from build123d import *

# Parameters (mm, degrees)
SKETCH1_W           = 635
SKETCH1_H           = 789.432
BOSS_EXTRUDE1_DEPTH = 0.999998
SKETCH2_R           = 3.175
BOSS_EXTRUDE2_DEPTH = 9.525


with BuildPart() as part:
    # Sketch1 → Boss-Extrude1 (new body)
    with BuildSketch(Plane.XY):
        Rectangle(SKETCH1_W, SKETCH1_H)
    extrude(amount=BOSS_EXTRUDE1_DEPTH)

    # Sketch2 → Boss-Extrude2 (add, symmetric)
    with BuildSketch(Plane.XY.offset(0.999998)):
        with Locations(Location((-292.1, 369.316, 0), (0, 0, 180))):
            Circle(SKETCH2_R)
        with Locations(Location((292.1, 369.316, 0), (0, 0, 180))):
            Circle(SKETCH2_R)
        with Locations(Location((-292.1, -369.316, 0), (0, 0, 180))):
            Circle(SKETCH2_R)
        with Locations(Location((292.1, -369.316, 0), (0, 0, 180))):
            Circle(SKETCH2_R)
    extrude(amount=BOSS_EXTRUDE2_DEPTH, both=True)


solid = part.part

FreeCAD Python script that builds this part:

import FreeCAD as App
import Part
import Sketcher

V = App.Vector
Q = App.Units.Quantity


def add_polygon(sketch, points):
    """Adds a closed chain of lines whose ends are joined by coincident constraints."""
    first, n = sketch.GeometryCount, len(points)
    for a, b in zip(points, points[1:] + points[:1]):
        sketch.addGeometry(Part.LineSegment(App.Vector(*a, 0), App.Vector(*b, 0)), False)
    for i in range(n):
        sketch.addConstraint(Sketcher.Constraint("Coincident", first + i, 2, first + (i + 1) % n, 1))

doc = App.newDocument("Part")
params = doc.addObject("Spreadsheet::Sheet", "Params")
for row, (alias, value) in enumerate([
    ("sketch1_width", "25 in"),
    ("sketch1_height", "31.08 in"),
    ("pad1_length", "0.999998 mm"),
    ("sketch2_diameter", "0.25 in"),
    ("pad2_length", "0.75 in"),
], start=1):
    params.set(f"A{row}", alias)
    params.set(f"B{row}", "=" + value)
    params.setAlias(f"B{row}", alias)

body = doc.addObject("PartDesign::Body", "Body")

sketch1 = doc.addObject("Sketcher::SketchObject", "Sketch")
body.addObject(sketch1)
sketch1.AttachmentSupport = (doc.XY_Plane, [""])
sketch1.MapMode = "FlatFace"
add_polygon(sketch1, [(-317.5, 394.716), (-317.5, -394.716), (317.5, -394.716), (317.5, 394.716)])
sketch1.addConstraint(Sketcher.Constraint("Vertical", 0))
sketch1.addConstraint(Sketcher.Constraint("Horizontal", 1))
sketch1.addConstraint(Sketcher.Constraint("Vertical", 2))
sketch1.addConstraint(Sketcher.Constraint("Horizontal", 3))
sketch1.addConstraint(Sketcher.Constraint("Symmetric", 0, 2, 2, 2, -1, 1))
sketch1.addConstraint(Sketcher.Constraint("DistanceX", 1, 1, 1, 2, Q("25 in")))
sketch1.addConstraint(Sketcher.Constraint("DistanceY", 0, 2, 0, 1, Q("31.08 in")))
sketch1.setExpression("Constraints[9]", "Params.sketch1_width")
sketch1.setExpression("Constraints[10]", "Params.sketch1_height")
pad1 = doc.addObject("PartDesign::Pad", "Pad")
body.addObject(pad1)
pad1.Profile = sketch1
pad1.setExpression("Length", "Params.pad1_length")

sketch2 = doc.addObject("Sketcher::SketchObject", "Sketch001")
body.addObject(sketch2)
sketch2.AttachmentSupport = (doc.XY_Plane, [""])
sketch2.MapMode = "FlatFace"
sketch2.AttachmentOffset = App.Placement(V(0, 0, 0.999998), App.Rotation())
sketch2.addGeometry(Part.Circle(V(-292.1, 369.316, 0), V(0, 0, 1), 3.175), False)
sketch2.addGeometry(Part.Circle(V(292.1, 369.316, 0), V(0, 0, 1), 3.175), False)
sketch2.addGeometry(Part.Circle(V(-292.1, -369.316, 0), V(0, 0, 1), 3.175), False)
sketch2.addGeometry(Part.Circle(V(292.1, -369.316, 0), V(0, 0, 1), 3.175), False)
sketch2.addConstraint(Sketcher.Constraint("Equal", 0, 1))
sketch2.addConstraint(Sketcher.Constraint("Equal", 1, 2))
sketch2.addConstraint(Sketcher.Constraint("Equal", 2, 3))
sketch2.addConstraint(Sketcher.Constraint("Symmetric", 1, 3, 2, 3, -1, 1))
sketch2.addConstraint(Sketcher.Constraint("Symmetric", 0, 3, 3, 3, -1, 1))
sketch2.addConstraint(Sketcher.Constraint("Symmetric", 0, 3, 1, 3, -2))
sketch2.addConstraint(Sketcher.Constraint("Diameter", 0, Q("0.25 in")))
sketch2.addConstraint(Sketcher.Constraint("DistanceX", 0, 3, 1, 3, Q("23 in")))
sketch2.addConstraint(Sketcher.Constraint("DistanceY", -1, 1, 0, 3, Q("14.54 in")))
sketch2.setExpression("Constraints[6]", "Params.sketch2_diameter")
pad2 = doc.addObject("PartDesign::Pad", "Pad001")
body.addObject(pad2)
pad2.Profile = sketch2
pad2.setExpression("Length", "Params.pad2_length")
pad2.Midplane = True

doc.recompute()
